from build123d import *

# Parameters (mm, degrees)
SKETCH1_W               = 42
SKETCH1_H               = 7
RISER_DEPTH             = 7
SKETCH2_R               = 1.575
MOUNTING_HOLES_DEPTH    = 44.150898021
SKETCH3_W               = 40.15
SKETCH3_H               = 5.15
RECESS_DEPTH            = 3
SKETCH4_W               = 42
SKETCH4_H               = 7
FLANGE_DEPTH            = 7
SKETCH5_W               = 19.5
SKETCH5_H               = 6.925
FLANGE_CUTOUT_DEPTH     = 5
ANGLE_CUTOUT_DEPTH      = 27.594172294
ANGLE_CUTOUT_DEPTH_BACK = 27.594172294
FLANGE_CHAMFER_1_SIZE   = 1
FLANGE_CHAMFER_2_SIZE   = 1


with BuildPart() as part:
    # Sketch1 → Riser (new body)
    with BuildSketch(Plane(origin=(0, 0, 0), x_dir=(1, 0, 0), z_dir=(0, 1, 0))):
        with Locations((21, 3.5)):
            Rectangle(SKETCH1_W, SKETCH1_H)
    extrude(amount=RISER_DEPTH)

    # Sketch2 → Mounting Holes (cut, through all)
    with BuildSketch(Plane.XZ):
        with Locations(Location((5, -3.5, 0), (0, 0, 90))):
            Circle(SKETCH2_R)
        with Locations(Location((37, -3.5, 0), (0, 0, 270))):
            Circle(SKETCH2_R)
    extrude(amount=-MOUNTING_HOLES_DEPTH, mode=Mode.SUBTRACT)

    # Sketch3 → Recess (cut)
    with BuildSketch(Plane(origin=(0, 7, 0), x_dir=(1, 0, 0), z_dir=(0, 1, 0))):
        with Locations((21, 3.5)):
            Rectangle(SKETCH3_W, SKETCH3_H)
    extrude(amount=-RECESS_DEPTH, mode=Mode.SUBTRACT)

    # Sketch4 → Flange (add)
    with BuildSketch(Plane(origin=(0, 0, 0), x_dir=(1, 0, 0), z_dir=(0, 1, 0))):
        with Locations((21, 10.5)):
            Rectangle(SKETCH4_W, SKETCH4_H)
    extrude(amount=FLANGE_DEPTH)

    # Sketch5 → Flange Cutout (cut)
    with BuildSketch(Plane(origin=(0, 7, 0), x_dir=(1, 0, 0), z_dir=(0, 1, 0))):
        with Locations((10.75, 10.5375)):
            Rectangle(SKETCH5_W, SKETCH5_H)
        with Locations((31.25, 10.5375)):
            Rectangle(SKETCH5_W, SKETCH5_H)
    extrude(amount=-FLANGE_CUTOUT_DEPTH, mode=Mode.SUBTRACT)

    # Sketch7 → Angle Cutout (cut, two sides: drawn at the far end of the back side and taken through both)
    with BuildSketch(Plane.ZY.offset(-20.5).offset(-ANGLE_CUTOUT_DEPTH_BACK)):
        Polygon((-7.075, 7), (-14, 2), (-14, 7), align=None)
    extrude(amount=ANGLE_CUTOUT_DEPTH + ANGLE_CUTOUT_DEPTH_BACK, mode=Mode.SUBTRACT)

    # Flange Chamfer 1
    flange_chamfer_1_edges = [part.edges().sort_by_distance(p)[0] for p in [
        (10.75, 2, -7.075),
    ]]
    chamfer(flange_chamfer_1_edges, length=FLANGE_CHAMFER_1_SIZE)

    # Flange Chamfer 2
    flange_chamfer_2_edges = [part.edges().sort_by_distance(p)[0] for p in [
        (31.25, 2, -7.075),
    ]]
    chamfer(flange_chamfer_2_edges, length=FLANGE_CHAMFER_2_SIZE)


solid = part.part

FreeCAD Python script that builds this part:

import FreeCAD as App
import Part
import Sketcher

V = App.Vector


def edges_at(feature, points):
    """Names of the edges that pass closest to the given points."""
    edges = feature.Shape.Edges
    near = lambda p: min(range(len(edges)), key=lambda i: edges[i].distToShape(Part.Vertex(*p))[0])
    return sorted({f"Edge{near(p) + 1}" for p in points})

doc = App.newDocument("Part")
body = doc.addObject("PartDesign::Body", "Body")

# Sketch on XZ plane
sketch1 = doc.addObject("Sketcher::SketchObject", "Sketch")
body.addObject(sketch1)
sketch1.AttachmentSupport = (doc.XZ_Plane, [""])
sketch1.MapMode = "FlatFace"
sketch1.addGeometry(Part.LineSegment(V(0, -7, 0), V(0, 0, 0)), False)
sketch1.addGeometry(Part.LineSegment(V(0, 0, 0), V(42, 0, 0)), False)
sketch1.addGeometry(Part.LineSegment(V(42, 0, 0), V(42, -7, 0)), False)
sketch1.addGeometry(Part.LineSegment(V(42, -7, 0), V(0, -7, 0)), False)
sketch1.addConstraint(Sketcher.Constraint("Coincident", 0, 2, 1, 1))
sketch1.addConstraint(Sketcher.Constraint("Coincident", 1, 2, 2, 1))
sketch1.addConstraint(Sketcher.Constraint("Coincident", 2, 2, 3, 1))
sketch1.addConstraint(Sketcher.Constraint("Coincident", 3, 2, 0, 1))
sketch1.addConstraint(Sketcher.Constraint("Vertical", 0))
sketch1.addConstraint(Sketcher.Constraint("Horizontal", 1))
sketch1.addConstraint(Sketcher.Constraint("Vertical", 2))
sketch1.addConstraint(Sketcher.Constraint("Horizontal", 3))
sketch1.addConstraint(Sketcher.Constraint("Coincident", 0, 2, -1, 1))
sketch1.addConstraint(Sketcher.Constraint("DistanceX", 1, 1, 1, 2, 42.0))
sketch1.addConstraint(Sketcher.Constraint("DistanceY", 0, 1, 0, 2, 7.0))
pad1 = doc.addObject("PartDesign::Pad", "Pad")
body.addObject(pad1)
pad1.Profile = sketch1
pad1.Length = 7
pad1.Reversed = True

# Sketch on XZ plane
sketch2 = doc.addObject("Sketcher::SketchObject", "Sketch001")
body.addObject(sketch2)
sketch2.AttachmentSupport = (doc.XZ_Plane, [""])
sketch2.MapMode = "FlatFace"
sketch2.addGeometry(Part.Circle(V(5, -3.5, 0), V(0, 0, 1), 1.6), False)
sketch2.addGeometry(Part.Circle(V(37, -3.5, 0), V(0, 0, 1), 1.6), False)
sketch2.addConstraint(Sketcher.Constraint("Equal", 0, 1))
sketch2.addConstraint(Sketcher.Constraint("Horizontal", 0, 3, 1, 3))
sketch2.addConstraint(Sketcher.Constraint("Diameter", 0, 3.15))
sketch2.addConstraint(Sketcher.Constraint("DistanceX", -1, 1, 0, 3, 5.0))
sketch2.addConstraint(Sketcher.Constraint("DistanceX", -1, 1, 1, 3, 37.0))
sketch2.addConstraint(Sketcher.Constraint("DistanceY", 0, 3, -1, 1, 3.5))
pocket1 = doc.addObject("PartDesign::Pocket", "Pocket")
body.addObject(pocket1)
pocket1.Profile = sketch2
pocket1.Type = "ThroughAll"

# Sketch on XZ plane
sketch3 = doc.addObject("Sketcher::SketchObject", "Sketch002")
body.addObject(sketch3)
sketch3.AttachmentSupport = (doc.XZ_Plane, [""])
sketch3.MapMode = "FlatFace"
sketch3.AttachmentOffset = App.Placement(V(0, 0, -7), App.Rotation())
sketch3.addGeometry(Part.LineSegment(V(1, -6, 0), V(1, -1, 0)), False)
sketch3.addGeometry(Part.LineSegment(V(1, -1, 0), V(41, -1, 0)), False)
sketch3.addGeometry(Part.LineSegment(V(41, -1, 0), V(41, -6, 0)), False)
sketch3.addGeometry(Part.LineSegment(V(41, -6, 0), V(1, -6, 0)), False)
sketch3.addConstraint(Sketcher.Constraint("Coincident", 0, 2, 1, 1))
sketch3.addConstraint(Sketcher.Constraint("Coincident", 1, 2, 2, 1))
sketch3.addConstraint(Sketcher.Constraint("Coincident", 2, 2, 3, 1))
sketch3.addConstraint(Sketcher.Constraint("Coincident", 3, 2, 0, 1))
sketch3.addConstraint(Sketcher.Constraint("Vertical", 0))
sketch3.addConstraint(Sketcher.Constraint("Horizontal", 1))
sketch3.addConstraint(Sketcher.Constraint("Vertical", 2))
sketch3.addConstraint(Sketcher.Constraint("Horizontal", 3))
sketch3.addConstraint(Sketcher.Constraint("DistanceX", 1, 1, 1, 2, 40.15))
sketch3.addConstraint(Sketcher.Constraint("DistanceY", 0, 1, 0, 2, 5.15))
sketch3.addConstraint(Sketcher.Constraint("DistanceX", -1, 1, 0, 2, 0.925))
sketch3.addConstraint(Sketcher.Constraint("DistanceY", 0, 2, -1, 1, 0.925))
pocket2 = doc.addObject("PartDesign::Pocket", "Pocket001")
body.addObject(pocket2)
pocket2.Profile = sketch3
pocket2.Length = 3
pocket2.Reversed = True

# Sketch on XZ plane
sketch4 = doc.addObject("Sketcher::SketchObject", "Sketch003")
body.addObject(sketch4)
sketch4.AttachmentSupport = (doc.XZ_Plane, [""])
sketch4.MapMode = "FlatFace"
sketch4.addGeometry(Part.LineSegment(V(0, -14, 0), V(0, -7, 0)), False)
sketch4.addGeometry(Part.LineSegment(V(0, -7, 0), V(42, -7, 0)), False)
sketch4.addGeometry(Part.LineSegment(V(42, -7, 0), V(42, -14, 0)), False)
sketch4.addGeometry(Part.LineSegment(V(42, -14, 0), V(0, -14, 0)), False)
sketch4.addConstraint(Sketcher.Constraint("Coincident", 0, 2, 1, 1))
sketch4.addConstraint(Sketcher.Constraint("Coincident", 1, 2, 2, 1))
sketch4.addConstraint(Sketcher.Constraint("Coincident", 2, 2, 3, 1))
sketch4.addConstraint(Sketcher.Constraint("Coincident", 3, 2, 0, 1))
sketch4.addConstraint(Sketcher.Constraint("Vertical", 0))
sketch4.addConstraint(Sketcher.Constraint("Horizontal", 1))
sketch4.addConstraint(Sketcher.Constraint("Vertical", 2))
sketch4.addConstraint(Sketcher.Constraint("Horizontal", 3))
sketch4.addConstraint(Sketcher.Constraint("PointOnObject", 0, 2, -2))
sketch4.addConstraint(Sketcher.Constraint("DistanceX", 1, 1, 1, 2, 42.0))
sketch4.addConstraint(Sketcher.Constraint("DistanceY", 0, 1, 0, 2, 7.0))
sketch4.addConstraint(Sketcher.Constraint("DistanceY", 0, 2, -1, 1, 7.0))
pad2 = doc.addObject("PartDesign::Pad", "Pad001")
body.addObject(pad2)
pad2.Profile = sketch4
pad2.Length = 7
pad2.Reversed = True

# Sketch on XZ plane
sketch5 = doc.addObject("Sketcher::SketchObject", "Sketch004")
body.addObject(sketch5)
sketch5.AttachmentSupport = (doc.XZ_Plane, [""])
sketch5.MapMode = "FlatFace"
sketch5.AttachmentOffset = App.Placement(V(0, 0, -7), App.Rotation())
sketch5.addGeometry(Part.LineSegment(V(1, -14, 0), V(1, -7, 0)), False)
sketch5.addGeometry(Part.LineSegment(V(1, -7, 0), V(20, -7, 0)), False)
sketch5.addGeometry(Part.LineSegment(V(20, -7, 0), V(20, -14, 0)), False)
sketch5.addGeometry(Part.LineSegment(V(20, -14, 0), V(1, -14, 0)), False)
sketch5.addGeometry(Part.LineSegment(V(22, -14, 0), V(22, -7, 0)), False)
sketch5.addGeometry(Part.LineSegment(V(22, -7, 0), V(41, -7, 0)), False)
sketch5.addGeometry(Part.LineSegment(V(41, -7, 0), V(41, -14, 0)), False)
sketch5.addGeometry(Part.LineSegment(V(41, -14, 0), V(22, -14, 0)), False)
sketch5.addConstraint(Sketcher.Constraint("Coincident", 0, 2, 1, 1))
sketch5.addConstraint(Sketcher.Constraint("Coincident", 1, 2, 2, 1))
sketch5.addConstraint(Sketcher.Constraint("Coincident", 2, 2, 3, 1))
sketch5.addConstraint(Sketcher.Constraint("Coincident", 3, 2, 0, 1))
sketch5.addConstraint(Sketcher.Constraint("Coincident", 4, 2, 5, 1))
sketch5.addConstraint(Sketcher.Constraint("Coincident", 5, 2, 6, 1))
sketch5.addConstraint(Sketcher.Constraint("Coincident", 6, 2, 7, 1))
sketch5.addConstraint(Sketcher.Constraint("Coincident", 7, 2, 4, 1))
sketch5.addConstraint(Sketcher.Constraint("Vertical", 0))
sketch5.addConstraint(Sketcher.Constraint("Horizontal", 1))
sketch5.addConstraint(Sketcher.Constraint("Vertical", 2))
sketch5.addConstraint(Sketcher.Constraint("Horizontal", 3))
sketch5.addConstraint(Sketcher.Constraint("Vertical", 4))
sketch5.addConstraint(Sketcher.Constraint("Horizontal", 5))
sketch5.addConstraint(Sketcher.Constraint("Vertical", 6))
sketch5.addConstraint(Sketcher.Constraint("Horizontal", 7))
sketch5.addConstraint(Sketcher.Constraint("Horizontal", 1, 2, 4, 2))
sketch5.addConstraint(Sketcher.Constraint("Horizontal", 3, 2, 6, 2))
sketch5.addConstraint(Sketcher.Constraint("Equal", 3, 5))
sketch5.addConstraint(Sketcher.Constraint("DistanceX", 1, 1, 1, 2, 19.5))
sketch5.addConstraint(Sketcher.Constraint("DistanceX", -1, 1, 0, 2, 1.0))
sketch5.addConstraint(Sketcher.Constraint("DistanceY", 2, 2, -1, 1, 14.0))
sketch5.addConstraint(Sketcher.Constraint("DistanceX", -1, 1, 5, 2, 41.0))
sketch5.addConstraint(Sketcher.Constraint("DistanceY", 0, 1, 0, 2, 6.925))
pocket3 = doc.addObject("PartDesign::Pocket", "Pocket002")
body.addObject(pocket3)
pocket3.Profile = sketch5
pocket3.Length = 5
pocket3.Reversed = True

# Sketch on YZ plane
sketch6 = doc.addObject("Sketcher::SketchObject", "Sketch005")
body.addObject(sketch6)
sketch6.AttachmentSupport = (doc.YZ_Plane, [""])
sketch6.MapMode = "FlatFace"
sketch6.AttachmentOffset = App.Placement(V(0, 0, 20.5), App.Rotation())
sketch6.addGeometry(Part.LineSegment(V(2, -14, 0), V(7, -7, 0)), False)
sketch6.addGeometry(Part.LineSegment(V(7, -7, 0), V(7, -14, 0)), False)
sketch6.addGeometry(Part.LineSegment(V(7, -14, 0), V(2, -14, 0)), False)
sketch6.addConstraint(Sketcher.Constraint("Coincident", 0, 2, 1, 1))
sketch6.addConstraint(Sketcher.Constraint("Coincident", 1, 2, 2, 1))
sketch6.addConstraint(Sketcher.Constraint("Coincident", 2, 2, 0, 1))
sketch6.addConstraint(Sketcher.Constraint("Vertical", 1))
sketch6.addConstraint(Sketcher.Constraint("Horizontal", 2))
sketch6.addConstraint(Sketcher.Constraint("DistanceX", 2, 2, 2, 1, 5.0))
sketch6.addConstraint(Sketcher.Constraint("DistanceX", -1, 1, 0, 2, 7.0))
sketch6.addConstraint(Sketcher.Constraint("DistanceY", 1, 2, -1, 1, 14.0))
sketch6.addConstraint(Sketcher.Constraint("DistanceY", 1, 2, 1, 1, 6.925))
pocket4 = doc.addObject("PartDesign::Pocket", "Pocket003")
body.addObject(pocket4)
pocket4.Profile = sketch6
pocket4.Type = "ThroughAll"
pocket4.Midplane = True
doc.recompute()

chamfer = doc.addObject("PartDesign::Chamfer", "Chamfer")
body.addObject(chamfer)
chamfer.Base = (pocket4, edges_at(pocket4, [(10.75, 2, -7.075)]))
chamfer.Size = 1
doc.recompute()

chamfer2 = doc.addObject("PartDesign::Chamfer", "Chamfer001")
body.addObject(chamfer2)
chamfer2.Base = (chamfer, edges_at(chamfer, [(31.25, 2, -7.075)]))
chamfer2.Size = 1

doc.recompute()
